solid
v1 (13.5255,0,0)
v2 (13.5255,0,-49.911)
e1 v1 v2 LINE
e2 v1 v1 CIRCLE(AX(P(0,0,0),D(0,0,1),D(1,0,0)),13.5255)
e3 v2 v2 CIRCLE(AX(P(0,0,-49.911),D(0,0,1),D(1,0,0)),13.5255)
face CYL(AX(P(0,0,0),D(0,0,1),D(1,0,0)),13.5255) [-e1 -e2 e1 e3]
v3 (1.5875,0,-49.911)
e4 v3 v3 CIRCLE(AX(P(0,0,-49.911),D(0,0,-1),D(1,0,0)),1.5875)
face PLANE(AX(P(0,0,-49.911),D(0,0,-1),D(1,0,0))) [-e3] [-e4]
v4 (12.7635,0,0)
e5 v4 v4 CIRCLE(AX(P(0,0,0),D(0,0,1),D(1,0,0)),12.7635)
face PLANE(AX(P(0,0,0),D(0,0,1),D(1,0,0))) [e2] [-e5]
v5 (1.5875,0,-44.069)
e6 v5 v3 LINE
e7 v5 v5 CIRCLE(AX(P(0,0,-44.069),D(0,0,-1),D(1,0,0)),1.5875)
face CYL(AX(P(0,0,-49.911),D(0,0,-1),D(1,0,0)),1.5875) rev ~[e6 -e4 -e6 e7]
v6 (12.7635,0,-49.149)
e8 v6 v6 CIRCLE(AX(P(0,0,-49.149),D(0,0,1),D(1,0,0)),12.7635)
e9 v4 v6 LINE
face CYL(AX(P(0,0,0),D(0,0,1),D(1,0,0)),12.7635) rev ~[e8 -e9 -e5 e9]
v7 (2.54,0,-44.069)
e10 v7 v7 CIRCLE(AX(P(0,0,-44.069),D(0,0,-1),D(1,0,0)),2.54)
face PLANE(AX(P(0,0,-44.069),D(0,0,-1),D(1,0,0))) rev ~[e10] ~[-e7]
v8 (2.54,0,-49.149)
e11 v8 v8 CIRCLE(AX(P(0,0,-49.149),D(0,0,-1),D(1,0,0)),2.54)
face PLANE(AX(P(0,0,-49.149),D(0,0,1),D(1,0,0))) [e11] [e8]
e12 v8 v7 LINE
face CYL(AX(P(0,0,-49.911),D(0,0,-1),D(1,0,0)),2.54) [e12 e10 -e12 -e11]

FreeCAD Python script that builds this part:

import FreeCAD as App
import Part
import Sketcher
from FreeCAD import Vector
Q = App.Units.Quantity

doc = App.newDocument("Part")
body = doc.addObject("PartDesign::Body", "Body")

# Sketch on XY plane
sketch1 = doc.addObject("Sketcher::SketchObject", "Sketch")
body.addObject(sketch1)
sketch1.AttachmentSupport = (doc.XY_Plane, [""])
sketch1.MapMode = "FlatFace"
sketch1.addGeometry(Part.Circle(Vector(0, 0, 0), Vector(0, 0, 1), 14), False)
sketch1.addConstraint([
    Sketcher.Constraint("Coincident", 0, 3, -1, 1),
    Sketcher.Constraint("Diameter", 0, Q("1.065 in")),
])
pad1 = doc.addObject("PartDesign::Pad", "Pad")
body.addObject(pad1)
pad1.Profile = sketch1
pad1.Length = Q("1.965 in")
pad1.Reversed = True

# Sketch on XY plane
sketch2 = doc.addObject("Sketcher::SketchObject", "Sketch001")
body.addObject(sketch2)
sketch2.AttachmentSupport = (doc.XY_Plane, [""])
sketch2.MapMode = "FlatFace"
sketch2.addGeometry(Part.Circle(Vector(0, 0, 0), Vector(0, 0, 1), 13), False)
sketch2.addConstraint([
    Sketcher.Constraint("Coincident", 0, 3, -1, 1),
    Sketcher.Constraint("Diameter", 0, Q("1.005 in")),
])
pocket1 = doc.addObject("PartDesign::Pocket", "Pocket")
body.addObject(pocket1)
pocket1.Profile = sketch2
pocket1.Length = Q("1.935 in")

# Sketch on XY plane
sketch3 = doc.addObject("Sketcher::SketchObject", "Sketch002")
body.addObject(sketch3)
sketch3.AttachmentSupport = (doc.XY_Plane, [""])
sketch3.MapMode = "FlatFace"
sketch3.AttachmentOffset = App.Placement(Vector(0, 0, -1.965 * 25.4), App.Rotation())
sketch3.addGeometry([
    Part.Circle(Vector(0, 0, 0), Vector(0, 0, 1), 2.5),
    Part.Circle(Vector(0, 0, 0), Vector(0, 0, 1), 1.6),
], False)
sketch3.addConstraint([
    Sketcher.Constraint("Coincident", 0, 3, -1, 1),
    Sketcher.Constraint("Coincident", 1, 3, -1, 1),
    Sketcher.Constraint("Diameter", 0, Q("0.2 in")),
    Sketcher.Constraint("Diameter", 1, Q("0.125 in")),
])
pad2 = doc.addObject("PartDesign::Pad", "Pad001")
body.addObject(pad2)
pad2.Profile = sketch3
pad2.Length = Q("0.23 in")

# Sketch on XY plane
sketch4 = doc.addObject("Sketcher::SketchObject", "Sketch003")
body.addObject(sketch4)
sketch4.AttachmentSupport = (doc.XY_Plane, [""])
sketch4.MapMode = "FlatFace"
sketch4.AttachmentOffset = App.Placement(Vector(0, 0, -1.965 * 25.4), App.Rotation())
sketch4.addGeometry(Part.Circle(Vector(0, 0, 0), Vector(0, 0, 1), 1.6), False)
sketch4.addConstraint([
    Sketcher.Constraint("Coincident", 0, 3, -1, 1),
    Sketcher.Constraint("Diameter", 0, Q("0.125 in")),
])
pocket2 = doc.addObject("PartDesign::Pocket", "Pocket001")
body.addObject(pocket2)
pocket2.Profile = sketch4
pocket2.Type = "ThroughAll"
pocket2.Reversed = True

doc.recompute()
